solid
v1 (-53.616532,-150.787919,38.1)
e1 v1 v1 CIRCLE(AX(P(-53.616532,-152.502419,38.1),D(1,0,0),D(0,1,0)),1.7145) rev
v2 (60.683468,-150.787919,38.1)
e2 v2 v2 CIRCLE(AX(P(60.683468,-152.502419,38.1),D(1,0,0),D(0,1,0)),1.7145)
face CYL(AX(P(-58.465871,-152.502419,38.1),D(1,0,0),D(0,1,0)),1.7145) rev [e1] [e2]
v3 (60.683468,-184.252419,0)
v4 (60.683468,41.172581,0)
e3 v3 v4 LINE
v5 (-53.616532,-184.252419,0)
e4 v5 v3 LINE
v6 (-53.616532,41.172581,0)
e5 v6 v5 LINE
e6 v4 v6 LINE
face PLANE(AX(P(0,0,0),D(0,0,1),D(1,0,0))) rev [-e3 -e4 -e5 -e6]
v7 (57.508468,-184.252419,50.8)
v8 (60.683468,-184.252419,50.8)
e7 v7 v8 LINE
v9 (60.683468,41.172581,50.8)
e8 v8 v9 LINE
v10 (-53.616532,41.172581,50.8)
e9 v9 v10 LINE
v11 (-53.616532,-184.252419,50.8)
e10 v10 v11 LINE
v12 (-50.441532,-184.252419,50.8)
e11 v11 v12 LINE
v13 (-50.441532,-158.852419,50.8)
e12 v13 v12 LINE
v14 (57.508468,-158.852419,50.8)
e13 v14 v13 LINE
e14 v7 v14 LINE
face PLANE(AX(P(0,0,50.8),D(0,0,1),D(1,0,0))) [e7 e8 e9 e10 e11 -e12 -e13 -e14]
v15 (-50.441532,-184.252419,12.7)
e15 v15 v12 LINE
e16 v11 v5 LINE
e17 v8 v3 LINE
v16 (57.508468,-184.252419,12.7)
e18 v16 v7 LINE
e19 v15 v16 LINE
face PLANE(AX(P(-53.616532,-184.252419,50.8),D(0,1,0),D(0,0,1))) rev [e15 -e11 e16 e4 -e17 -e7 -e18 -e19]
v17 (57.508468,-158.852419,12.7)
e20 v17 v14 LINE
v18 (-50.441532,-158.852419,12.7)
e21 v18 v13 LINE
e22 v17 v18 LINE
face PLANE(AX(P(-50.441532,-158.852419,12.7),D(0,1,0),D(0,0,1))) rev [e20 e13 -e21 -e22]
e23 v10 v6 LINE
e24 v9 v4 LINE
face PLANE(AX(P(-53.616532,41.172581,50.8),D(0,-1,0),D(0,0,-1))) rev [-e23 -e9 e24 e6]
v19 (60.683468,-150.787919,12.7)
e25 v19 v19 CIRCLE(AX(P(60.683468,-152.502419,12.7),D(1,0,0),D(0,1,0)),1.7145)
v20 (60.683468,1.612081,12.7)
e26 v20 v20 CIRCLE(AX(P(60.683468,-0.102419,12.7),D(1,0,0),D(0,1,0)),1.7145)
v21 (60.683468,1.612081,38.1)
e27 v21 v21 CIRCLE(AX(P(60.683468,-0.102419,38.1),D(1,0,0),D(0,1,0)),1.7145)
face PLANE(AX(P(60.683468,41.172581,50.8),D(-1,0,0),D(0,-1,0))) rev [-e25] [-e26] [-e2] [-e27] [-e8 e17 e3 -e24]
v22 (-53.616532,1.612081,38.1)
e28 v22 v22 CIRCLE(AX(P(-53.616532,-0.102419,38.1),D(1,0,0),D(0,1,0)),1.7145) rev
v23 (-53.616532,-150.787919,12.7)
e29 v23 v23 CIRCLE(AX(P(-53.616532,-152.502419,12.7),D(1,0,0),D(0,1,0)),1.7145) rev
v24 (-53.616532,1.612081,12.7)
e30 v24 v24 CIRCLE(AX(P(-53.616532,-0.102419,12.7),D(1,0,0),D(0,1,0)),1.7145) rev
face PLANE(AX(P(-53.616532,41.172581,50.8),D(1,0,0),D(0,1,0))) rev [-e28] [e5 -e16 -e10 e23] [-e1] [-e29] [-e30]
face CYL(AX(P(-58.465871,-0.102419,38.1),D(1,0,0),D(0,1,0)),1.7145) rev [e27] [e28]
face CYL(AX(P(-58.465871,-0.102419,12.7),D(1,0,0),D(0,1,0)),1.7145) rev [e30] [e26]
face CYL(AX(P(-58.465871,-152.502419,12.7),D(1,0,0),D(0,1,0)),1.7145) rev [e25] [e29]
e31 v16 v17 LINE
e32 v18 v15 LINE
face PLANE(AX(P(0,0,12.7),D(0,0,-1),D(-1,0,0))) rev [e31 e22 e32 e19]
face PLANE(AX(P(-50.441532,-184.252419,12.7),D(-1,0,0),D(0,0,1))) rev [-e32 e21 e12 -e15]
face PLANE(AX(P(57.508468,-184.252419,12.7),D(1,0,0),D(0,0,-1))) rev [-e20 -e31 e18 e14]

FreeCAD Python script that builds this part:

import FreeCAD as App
import Part
import Sketcher
from FreeCAD import Vector
Q = App.Units.Quantity

doc = App.newDocument("Part")
body = doc.addObject("PartDesign::Body", "Body")

# Sketch on XY plane
sketch1 = doc.addObject("Sketcher::SketchObject", "Sketch")
body.addObject(sketch1)
sketch1.AttachmentSupport = (doc.XY_Plane, [""])
sketch1.MapMode = "FlatFace"
sketch1.addGeometry([
    Part.LineSegment(Vector(-53.616532, 41.172581, 0), Vector(-53.616532, -184.252419, 0)),
    Part.LineSegment(Vector(-53.616532, -184.252419, 0), Vector(60.683468, -184.252419, 0)),
    Part.LineSegment(Vector(60.683468, -184.252419, 0), Vector(60.683468, 41.172581, 0)),
    Part.LineSegment(Vector(60.683468, 41.172581, 0), Vector(-53.616532, 41.172581, 0)),
], False)
sketch1.addConstraint([
    Sketcher.Constraint("Coincident", 0, 2, 1, 1),
    Sketcher.Constraint("Coincident", 1, 2, 2, 1),
    Sketcher.Constraint("Coincident", 2, 2, 3, 1),
    Sketcher.Constraint("Coincident", 3, 2, 0, 1),
    Sketcher.Constraint("Vertical", 0),
    Sketcher.Constraint("Horizontal", 1),
    Sketcher.Constraint("Vertical", 2),
    Sketcher.Constraint("Horizontal", 3),
    Sketcher.Constraint("DistanceX", 1, 1, 1, 2, Q("4.5 in")),
    Sketcher.Constraint("DistanceY", 0, 2, 0, 1, Q("8.875 in")),
    Sketcher.Constraint("DistanceY", 0, 2, -1, 1, 184.252419),
    Sketcher.Constraint("DistanceX", 0, 2, -1, 1, 53.616532),
])
pad1 = doc.addObject("PartDesign::Pad", "Pad")
body.addObject(pad1)
pad1.Profile = sketch1
pad1.Length = Q("2 in")

# Sketch on XY plane
sketch2 = doc.addObject("Sketcher::SketchObject", "Sketch001")
body.addObject(sketch2)
sketch2.AttachmentSupport = (doc.XY_Plane, [""])
sketch2.MapMode = "FlatFace"
sketch2.AttachmentOffset = App.Placement(Vector(0, 0, 2 * 25.4), App.Rotation())
sketch2.addGeometry([
    Part.LineSegment(Vector(-50.441532, -158.852419, 0), Vector(-50.441532, -184.252419, 0)),
    Part.LineSegment(Vector(-50.441532, -184.252419, 0), Vector(57.508468, -184.252419, 0)),
    Part.LineSegment(Vector(57.508468, -184.252419, 0), Vector(57.508468, -158.852419, 0)),
    Part.LineSegment(Vector(57.508468, -158.852419, 0), Vector(-50.441532, -158.852419, 0)),
], False)
sketch2.addConstraint([
    Sketcher.Constraint("Coincident", 0, 2, 1, 1),
    Sketcher.Constraint("Coincident", 1, 2, 2, 1),
    Sketcher.Constraint("Coincident", 2, 2, 3, 1),
    Sketcher.Constraint("Coincident", 3, 2, 0, 1),
    Sketcher.Constraint("Vertical", 0),
    Sketcher.Constraint("Horizontal", 1),
    Sketcher.Constraint("Vertical", 2),
    Sketcher.Constraint("Horizontal", 3),
    Sketcher.Constraint("DistanceY", 0, 2, 0, 1, Q("1 in")),
    Sketcher.Constraint("DistanceX", 1, 1, 1, 2, Q("4.25 in")),
    Sketcher.Constraint("DistanceY", 0, 2, -1, 1, 184.252419),
    Sketcher.Constraint("DistanceX", 0, 2, -1, 1, 50.441532),
])
pocket1 = doc.addObject("PartDesign::Pocket", "Pocket")
body.addObject(pocket1)
pocket1.Profile = sketch2
pocket1.Length = Q("1.5 in")

# Sketch on YZ plane
sketch3 = doc.addObject("Sketcher::SketchObject", "Sketch002")
body.addObject(sketch3)
sketch3.AttachmentSupport = (doc.YZ_Plane, [""])
sketch3.MapMode = "FlatFace"
sketch3.AttachmentOffset = App.Placement(Vector(0, 0, 60.683468), App.Rotation())
sketch3.addGeometry([
    Part.Circle(Vector(-152.502419, 12.7, 0), Vector(0, 0, 1), 1.7145),
    Part.Circle(Vector(-152.502419, 38.1, 0), Vector(0, 0, 1), 1.7145),
    Part.Circle(Vector(-0.102419, 38.1, 0), Vector(0, 0, 1), 1.7145),
    Part.Circle(Vector(-0.102419, 12.7, 0), Vector(0, 0, 1), 1.7145),
], False)
sketch3.addConstraint([
    Sketcher.Constraint("Equal", 0, 1),
    Sketcher.Constraint("Equal", 1, 2),
    Sketcher.Constraint("Equal", 2, 3),
    Sketcher.Constraint("Horizontal", 1, 3, 2, 3),
    Sketcher.Constraint("Horizontal", 0, 3, 3, 3),
    Sketcher.Constraint("Vertical", 0, 3, 1, 3),
    Sketcher.Constraint("Vertical", 2, 3, 3, 3),
    Sketcher.Constraint("Diameter", 0, Q("0.135 in")),
    Sketcher.Constraint("DistanceY", 0, 3, 1, 3, Q("1 in")),
    Sketcher.Constraint("DistanceX", 1, 3, 2, 3, Q("6 in")),
    Sketcher.Constraint("DistanceY", -1, 1, 0, 3, Q("0.5 in")),
    Sketcher.Constraint("DistanceX", 0, 3, -1, 1, 152.502419),
])
pocket2 = doc.addObject("PartDesign::Pocket", "Pocket001")
body.addObject(pocket2)
pocket2.Profile = sketch3
pocket2.Length = Q("4.5 in")

doc.recompute()
